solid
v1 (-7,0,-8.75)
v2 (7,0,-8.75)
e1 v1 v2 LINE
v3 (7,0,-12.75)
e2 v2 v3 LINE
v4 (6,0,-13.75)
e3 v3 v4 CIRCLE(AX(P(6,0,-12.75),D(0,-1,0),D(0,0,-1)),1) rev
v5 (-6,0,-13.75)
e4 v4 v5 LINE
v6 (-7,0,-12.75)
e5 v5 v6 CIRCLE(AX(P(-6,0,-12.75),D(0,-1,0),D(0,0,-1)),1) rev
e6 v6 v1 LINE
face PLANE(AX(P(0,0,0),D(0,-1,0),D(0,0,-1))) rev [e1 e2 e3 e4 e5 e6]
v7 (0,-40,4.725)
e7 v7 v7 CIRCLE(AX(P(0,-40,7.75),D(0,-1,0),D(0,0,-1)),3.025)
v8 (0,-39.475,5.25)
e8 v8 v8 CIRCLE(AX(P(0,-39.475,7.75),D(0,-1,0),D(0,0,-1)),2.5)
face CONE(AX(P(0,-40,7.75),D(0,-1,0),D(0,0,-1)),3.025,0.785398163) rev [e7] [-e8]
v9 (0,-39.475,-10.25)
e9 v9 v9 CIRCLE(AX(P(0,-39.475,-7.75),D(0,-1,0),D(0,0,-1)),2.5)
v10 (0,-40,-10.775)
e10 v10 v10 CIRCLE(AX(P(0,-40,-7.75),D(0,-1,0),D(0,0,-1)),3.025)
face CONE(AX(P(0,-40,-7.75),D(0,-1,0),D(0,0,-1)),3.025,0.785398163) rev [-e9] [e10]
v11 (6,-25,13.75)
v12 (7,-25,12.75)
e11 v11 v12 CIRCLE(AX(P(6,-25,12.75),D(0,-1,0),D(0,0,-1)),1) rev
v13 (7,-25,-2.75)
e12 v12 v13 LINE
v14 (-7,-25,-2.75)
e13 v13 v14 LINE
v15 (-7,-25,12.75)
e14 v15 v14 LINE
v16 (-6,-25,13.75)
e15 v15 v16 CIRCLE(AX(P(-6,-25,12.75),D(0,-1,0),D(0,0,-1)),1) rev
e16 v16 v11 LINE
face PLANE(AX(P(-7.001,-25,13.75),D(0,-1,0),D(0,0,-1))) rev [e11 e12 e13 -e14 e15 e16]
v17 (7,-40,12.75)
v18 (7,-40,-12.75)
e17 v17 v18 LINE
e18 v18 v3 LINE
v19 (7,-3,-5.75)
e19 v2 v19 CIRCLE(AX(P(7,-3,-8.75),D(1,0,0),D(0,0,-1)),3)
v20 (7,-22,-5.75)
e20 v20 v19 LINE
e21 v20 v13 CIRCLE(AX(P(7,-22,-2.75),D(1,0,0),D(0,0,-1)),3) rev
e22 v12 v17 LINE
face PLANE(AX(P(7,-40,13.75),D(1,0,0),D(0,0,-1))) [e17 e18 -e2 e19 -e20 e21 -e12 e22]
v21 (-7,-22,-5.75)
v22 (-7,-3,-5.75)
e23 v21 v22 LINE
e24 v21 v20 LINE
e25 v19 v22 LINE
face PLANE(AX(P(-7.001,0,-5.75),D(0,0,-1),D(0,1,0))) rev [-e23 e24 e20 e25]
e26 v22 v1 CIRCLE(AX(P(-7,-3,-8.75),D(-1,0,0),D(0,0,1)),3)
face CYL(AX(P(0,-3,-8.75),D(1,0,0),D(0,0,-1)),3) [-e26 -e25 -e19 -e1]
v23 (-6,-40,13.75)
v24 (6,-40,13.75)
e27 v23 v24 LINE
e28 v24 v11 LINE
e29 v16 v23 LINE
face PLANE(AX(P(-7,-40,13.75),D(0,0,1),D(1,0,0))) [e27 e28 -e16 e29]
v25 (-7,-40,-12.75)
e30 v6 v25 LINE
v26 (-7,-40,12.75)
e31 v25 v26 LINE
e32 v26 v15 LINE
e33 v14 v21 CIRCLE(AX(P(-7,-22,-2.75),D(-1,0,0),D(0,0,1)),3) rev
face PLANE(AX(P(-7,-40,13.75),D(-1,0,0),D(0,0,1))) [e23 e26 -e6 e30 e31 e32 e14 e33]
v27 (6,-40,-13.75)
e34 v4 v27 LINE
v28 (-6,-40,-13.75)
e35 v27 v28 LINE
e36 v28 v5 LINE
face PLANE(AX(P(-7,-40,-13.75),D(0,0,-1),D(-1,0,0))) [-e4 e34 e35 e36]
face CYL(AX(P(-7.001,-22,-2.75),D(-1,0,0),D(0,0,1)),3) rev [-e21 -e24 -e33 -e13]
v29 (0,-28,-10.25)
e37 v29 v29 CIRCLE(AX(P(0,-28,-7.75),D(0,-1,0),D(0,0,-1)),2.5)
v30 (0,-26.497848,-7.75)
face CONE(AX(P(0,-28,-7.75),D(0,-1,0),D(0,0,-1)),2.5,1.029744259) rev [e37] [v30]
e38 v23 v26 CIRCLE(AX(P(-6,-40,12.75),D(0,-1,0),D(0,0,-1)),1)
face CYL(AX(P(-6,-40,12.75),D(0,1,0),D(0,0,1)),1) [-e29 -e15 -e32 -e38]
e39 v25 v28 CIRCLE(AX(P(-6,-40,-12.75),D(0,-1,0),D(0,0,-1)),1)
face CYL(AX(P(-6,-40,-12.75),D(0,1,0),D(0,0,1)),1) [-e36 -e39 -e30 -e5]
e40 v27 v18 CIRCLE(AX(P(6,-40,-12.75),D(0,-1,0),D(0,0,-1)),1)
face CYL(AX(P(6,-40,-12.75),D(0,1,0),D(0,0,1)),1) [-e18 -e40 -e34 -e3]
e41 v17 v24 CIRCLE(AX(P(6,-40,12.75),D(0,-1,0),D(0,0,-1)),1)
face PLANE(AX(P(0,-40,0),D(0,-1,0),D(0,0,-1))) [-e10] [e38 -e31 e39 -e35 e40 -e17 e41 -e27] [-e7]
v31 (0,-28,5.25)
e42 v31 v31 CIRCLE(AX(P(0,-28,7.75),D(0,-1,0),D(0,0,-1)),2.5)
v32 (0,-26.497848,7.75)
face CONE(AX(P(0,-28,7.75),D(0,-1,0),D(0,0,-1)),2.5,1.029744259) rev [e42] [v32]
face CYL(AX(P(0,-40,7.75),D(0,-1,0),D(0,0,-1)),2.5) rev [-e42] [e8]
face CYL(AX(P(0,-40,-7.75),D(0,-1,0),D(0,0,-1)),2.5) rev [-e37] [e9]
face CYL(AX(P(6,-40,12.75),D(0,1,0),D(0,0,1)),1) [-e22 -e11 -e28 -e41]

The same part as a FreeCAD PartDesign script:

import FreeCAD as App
import Part
import Sketcher

V = App.Vector


def edges_at(feature, points):
    """Names of the edges that pass closest to the given points."""
    edges = feature.Shape.Edges
    near = lambda p: min(range(len(edges)), key=lambda i: edges[i].distToShape(Part.Vertex(*p))[0])
    return sorted({f"Edge{near(p) + 1}" for p in points})

doc = App.newDocument("Part")
body = doc.addObject("PartDesign::Body", "Body")

# Sketch on XZ plane
sketch1 = body.newObject("Sketcher::SketchObject", "Sketch")
sketch1.AttachmentSupport = (doc.getObject("XZ_Plane"), [""])
sketch1.MapMode = "FlatFace"
sketch1.addGeometry([
    Part.LineSegment(V(-7, -14, 0), V(-7, 14, 0)),
    Part.LineSegment(V(-7, 14, 0), V(7, 14, 0)),
    Part.LineSegment(V(7, 14, 0), V(7, -14, 0)),
    Part.LineSegment(V(7, -14, 0), V(-7, -14, 0)),
], False)
sketch1.addConstraint([
    Sketcher.Constraint("Coincident", 0, 2, 1, 1),
    Sketcher.Constraint("Coincident", 1, 2, 2, 1),
    Sketcher.Constraint("Coincident", 2, 2, 3, 1),
    Sketcher.Constraint("Coincident", 3, 2, 0, 1),
    Sketcher.Constraint("Vertical", 0),
    Sketcher.Constraint("Horizontal", 1),
    Sketcher.Constraint("Vertical", 2),
    Sketcher.Constraint("Horizontal", 3),
    Sketcher.Constraint("Symmetric", 0, 2, 2, 2, -1, 1),
    Sketcher.Constraint("DistanceX", 1, 1, 1, 2, 14.0),
    Sketcher.Constraint("DistanceY", 0, 1, 0, 2, 27.5),
])
pad1 = body.newObject("PartDesign::Pad", "Pad")
pad1.Profile = sketch1
pad1.Length = 40

# Sketch on YZ plane
sketch2 = body.newObject("Sketcher::SketchObject", "Sketch001")
sketch2.AttachmentSupport = (doc.getObject("YZ_Plane"), [""])
sketch2.MapMode = "FlatFace"
sketch2.AttachmentOffset = App.Placement(V(0, 0, 7), App.Rotation())
sketch2.addGeometry([
    Part.LineSegment(V(0, 14, 0), V(-25, 14, 0)),
    Part.LineSegment(V(-25, 14, 0), V(-25, -6, 0)),
    Part.LineSegment(V(-25, -6, 0), V(0, -6, 0)),
    Part.LineSegment(V(0, -6, 0), V(0, 14, 0)),
], False)
sketch2.addConstraint([
    Sketcher.Constraint("Coincident", 0, 2, 1, 1),
    Sketcher.Constraint("Coincident", 1, 2, 2, 1),
    Sketcher.Constraint("Coincident", 2, 2, 3, 1),
    Sketcher.Constraint("Coincident", 3, 2, 0, 1),
    Sketcher.Constraint("Horizontal", 0),
    Sketcher.Constraint("Vertical", 1),
    Sketcher.Constraint("Horizontal", 2),
    Sketcher.Constraint("Vertical", 3),
    Sketcher.Constraint("PointOnObject", 2, 2, -2),
    Sketcher.Constraint("DistanceX", 0, 2, 0, 1, 25.0),
    Sketcher.Constraint("DistanceY", 1, 2, 1, 1, 19.5),
    Sketcher.Constraint("DistanceY", -1, 1, 0, 2, 13.75),
])
pocket1 = body.newObject("PartDesign::Pocket", "Pocket")
pocket1.Profile = sketch2
pocket1.Type = "UpToFirst"
doc.recompute()

fillet = body.newObject("PartDesign::Fillet", "Fillet")
fillet.Base = (pocket1, edges_at(pocket1, [(0, 0, -5.75), (0, -25, -5.75)]))
fillet.Radius = 3

# Sketch on XZ plane
sketch3 = body.newObject("Sketcher::SketchObject", "Sketch002")
sketch3.AttachmentSupport = (doc.getObject("XZ_Plane"), [""])
sketch3.MapMode = "FlatFace"
sketch3.AttachmentOffset = App.Placement(V(0, 0, 40), App.Rotation())
sketch3.addGeometry([
    Part.Circle(V(0, 7.8, 0), V(0, 0, 1), 2.5),
    Part.Circle(V(0, -7.8, 0), V(0, 0, 1), 2.5),
], False)
sketch3.addConstraint([
    Sketcher.Constraint("Equal", 0, 1),
    Sketcher.Constraint("Symmetric", 0, 3, 1, 3, -1, 1),
    Sketcher.Constraint("PointOnObject", 0, 3, -2),
    Sketcher.Constraint("Diameter", 0, 5.0),
    Sketcher.Constraint("DistanceY", 1, 3, 0, 3, 15.5),
])
doc.recompute()
hole = body.newObject("PartDesign::Hole", "Hole")
hole.Profile = sketch3
hole.ThreadType = "None"
hole.Diameter = 5
hole.DepthType = "Dimension"
hole.Depth = 12
hole.DrillPoint = "Angled"
hole.DrillPointAngle = 118
hole.HoleCutType = "Countersink"
hole.HoleCutDiameter = 6.05
hole.HoleCutCountersinkAngle = 90
doc.recompute()

fillet2 = body.newObject("PartDesign::Fillet", "Fillet001")
fillet2.Base = (hole, edges_at(hole, [
    (7, -32.5, 13.75),
    (-7, -32.5, 13.75),
    (-7, -20, -13.75),
    (7, -20, -13.75),
]))
fillet2.Radius = 1

doc.recompute()
